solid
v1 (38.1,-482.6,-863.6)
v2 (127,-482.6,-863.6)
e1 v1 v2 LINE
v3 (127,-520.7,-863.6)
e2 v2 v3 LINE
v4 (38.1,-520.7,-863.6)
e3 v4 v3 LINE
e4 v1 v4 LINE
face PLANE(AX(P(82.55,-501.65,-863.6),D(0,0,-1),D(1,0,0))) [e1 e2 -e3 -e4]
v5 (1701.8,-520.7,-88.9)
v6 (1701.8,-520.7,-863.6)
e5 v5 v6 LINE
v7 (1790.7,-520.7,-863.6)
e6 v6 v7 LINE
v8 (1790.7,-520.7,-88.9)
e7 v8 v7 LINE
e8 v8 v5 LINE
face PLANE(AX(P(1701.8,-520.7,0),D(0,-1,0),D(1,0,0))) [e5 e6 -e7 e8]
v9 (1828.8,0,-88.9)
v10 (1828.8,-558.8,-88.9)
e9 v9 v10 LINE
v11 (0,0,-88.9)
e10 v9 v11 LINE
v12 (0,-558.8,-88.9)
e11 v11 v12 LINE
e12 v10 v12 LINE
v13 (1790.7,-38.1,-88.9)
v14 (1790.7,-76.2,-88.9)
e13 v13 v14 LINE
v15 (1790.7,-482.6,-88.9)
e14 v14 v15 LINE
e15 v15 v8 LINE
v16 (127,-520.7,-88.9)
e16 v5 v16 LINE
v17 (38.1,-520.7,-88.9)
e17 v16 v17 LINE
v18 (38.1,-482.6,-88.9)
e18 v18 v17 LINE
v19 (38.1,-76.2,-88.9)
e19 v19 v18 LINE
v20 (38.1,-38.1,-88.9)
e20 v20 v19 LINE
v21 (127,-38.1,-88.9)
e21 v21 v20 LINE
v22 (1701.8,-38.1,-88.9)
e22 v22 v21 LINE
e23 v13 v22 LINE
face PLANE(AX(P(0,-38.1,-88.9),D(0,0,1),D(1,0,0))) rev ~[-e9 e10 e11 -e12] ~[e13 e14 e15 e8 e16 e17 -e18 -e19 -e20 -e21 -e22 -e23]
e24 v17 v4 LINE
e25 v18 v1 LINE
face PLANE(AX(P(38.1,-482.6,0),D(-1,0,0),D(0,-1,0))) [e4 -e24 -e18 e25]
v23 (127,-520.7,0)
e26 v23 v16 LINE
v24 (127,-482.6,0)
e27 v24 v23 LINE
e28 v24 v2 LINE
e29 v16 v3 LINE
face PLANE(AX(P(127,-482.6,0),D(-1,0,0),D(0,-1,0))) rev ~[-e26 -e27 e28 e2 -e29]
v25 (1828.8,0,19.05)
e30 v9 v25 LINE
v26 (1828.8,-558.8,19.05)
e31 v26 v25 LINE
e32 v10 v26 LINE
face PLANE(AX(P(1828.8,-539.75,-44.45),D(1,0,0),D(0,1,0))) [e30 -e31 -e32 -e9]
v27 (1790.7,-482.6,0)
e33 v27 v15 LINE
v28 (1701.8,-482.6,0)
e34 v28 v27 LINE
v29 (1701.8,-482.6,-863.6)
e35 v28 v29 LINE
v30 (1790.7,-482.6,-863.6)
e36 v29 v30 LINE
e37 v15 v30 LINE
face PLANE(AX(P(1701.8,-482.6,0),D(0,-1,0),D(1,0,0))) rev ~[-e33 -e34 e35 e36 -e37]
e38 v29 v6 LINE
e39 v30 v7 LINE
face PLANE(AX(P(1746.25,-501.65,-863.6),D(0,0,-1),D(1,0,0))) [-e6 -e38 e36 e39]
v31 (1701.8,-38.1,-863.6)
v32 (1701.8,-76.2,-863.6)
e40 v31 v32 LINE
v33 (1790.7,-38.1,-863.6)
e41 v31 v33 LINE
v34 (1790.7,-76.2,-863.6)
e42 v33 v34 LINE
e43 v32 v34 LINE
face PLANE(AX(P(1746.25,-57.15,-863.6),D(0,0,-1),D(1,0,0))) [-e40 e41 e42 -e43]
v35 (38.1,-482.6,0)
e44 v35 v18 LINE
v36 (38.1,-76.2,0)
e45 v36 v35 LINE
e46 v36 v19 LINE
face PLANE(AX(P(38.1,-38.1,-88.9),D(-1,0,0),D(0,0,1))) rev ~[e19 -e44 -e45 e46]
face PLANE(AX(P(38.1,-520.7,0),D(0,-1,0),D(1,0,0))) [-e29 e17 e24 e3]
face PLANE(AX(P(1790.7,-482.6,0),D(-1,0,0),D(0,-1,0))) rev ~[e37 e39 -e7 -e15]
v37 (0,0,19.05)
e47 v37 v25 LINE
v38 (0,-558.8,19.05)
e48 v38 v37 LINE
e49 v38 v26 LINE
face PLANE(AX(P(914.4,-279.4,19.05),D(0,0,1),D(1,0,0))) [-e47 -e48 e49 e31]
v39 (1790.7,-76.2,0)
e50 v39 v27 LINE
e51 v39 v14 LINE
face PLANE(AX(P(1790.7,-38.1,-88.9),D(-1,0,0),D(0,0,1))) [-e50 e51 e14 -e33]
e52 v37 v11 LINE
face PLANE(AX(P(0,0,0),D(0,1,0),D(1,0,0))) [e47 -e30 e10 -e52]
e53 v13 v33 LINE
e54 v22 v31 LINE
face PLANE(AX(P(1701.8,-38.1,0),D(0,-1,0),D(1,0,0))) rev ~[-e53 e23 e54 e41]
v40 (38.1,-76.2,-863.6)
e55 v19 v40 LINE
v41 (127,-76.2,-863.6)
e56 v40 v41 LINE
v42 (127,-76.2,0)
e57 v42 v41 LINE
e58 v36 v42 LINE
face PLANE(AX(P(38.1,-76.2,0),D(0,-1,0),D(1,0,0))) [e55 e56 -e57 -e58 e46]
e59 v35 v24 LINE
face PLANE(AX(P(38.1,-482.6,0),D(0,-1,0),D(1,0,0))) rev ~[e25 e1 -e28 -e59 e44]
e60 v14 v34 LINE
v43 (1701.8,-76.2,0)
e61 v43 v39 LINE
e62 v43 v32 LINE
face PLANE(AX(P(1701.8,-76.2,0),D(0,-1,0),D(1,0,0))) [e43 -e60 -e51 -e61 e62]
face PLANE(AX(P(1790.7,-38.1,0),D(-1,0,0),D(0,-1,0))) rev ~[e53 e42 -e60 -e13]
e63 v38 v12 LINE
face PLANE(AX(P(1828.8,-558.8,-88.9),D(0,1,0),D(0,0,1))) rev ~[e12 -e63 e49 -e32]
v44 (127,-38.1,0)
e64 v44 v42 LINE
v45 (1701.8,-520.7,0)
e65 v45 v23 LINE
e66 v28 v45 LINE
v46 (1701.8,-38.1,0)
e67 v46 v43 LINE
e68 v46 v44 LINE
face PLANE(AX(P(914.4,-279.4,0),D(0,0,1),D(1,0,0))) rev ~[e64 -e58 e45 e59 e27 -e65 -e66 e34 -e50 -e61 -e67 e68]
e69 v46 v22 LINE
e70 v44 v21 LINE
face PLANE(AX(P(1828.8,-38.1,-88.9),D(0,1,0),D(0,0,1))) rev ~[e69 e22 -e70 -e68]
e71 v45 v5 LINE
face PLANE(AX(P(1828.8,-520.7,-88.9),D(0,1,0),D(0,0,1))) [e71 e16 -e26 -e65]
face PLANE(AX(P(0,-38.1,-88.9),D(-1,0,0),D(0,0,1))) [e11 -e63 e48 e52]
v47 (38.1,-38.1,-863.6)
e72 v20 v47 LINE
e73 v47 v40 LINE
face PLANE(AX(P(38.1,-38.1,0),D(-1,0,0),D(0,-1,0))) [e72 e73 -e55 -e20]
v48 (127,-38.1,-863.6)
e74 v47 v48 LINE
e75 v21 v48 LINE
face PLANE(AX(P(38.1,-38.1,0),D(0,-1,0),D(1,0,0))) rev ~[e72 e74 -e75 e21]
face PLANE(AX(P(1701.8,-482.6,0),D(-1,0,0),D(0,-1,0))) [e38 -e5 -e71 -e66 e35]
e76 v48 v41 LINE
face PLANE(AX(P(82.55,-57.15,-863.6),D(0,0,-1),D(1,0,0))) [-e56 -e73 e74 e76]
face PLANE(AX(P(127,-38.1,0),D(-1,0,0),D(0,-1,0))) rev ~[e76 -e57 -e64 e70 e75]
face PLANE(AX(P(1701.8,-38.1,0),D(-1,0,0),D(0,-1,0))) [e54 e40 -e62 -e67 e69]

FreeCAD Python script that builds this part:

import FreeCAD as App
import Part
import Sketcher
from FreeCAD import Vector
Q = App.Units.Quantity


def add_polygon(sketch, points):
    """Adds a closed chain of lines whose ends are joined by coincident constraints."""
    first, n = sketch.GeometryCount, len(points)
    for a, b in zip(points, points[1:] + points[:1]):
        sketch.addGeometry(Part.LineSegment(App.Vector(*a, 0), App.Vector(*b, 0)), False)
    for i in range(n):
        sketch.addConstraint(Sketcher.Constraint("Coincident", first + i, 2, first + (i + 1) % n, 1))

doc = App.newDocument("Part")
body = doc.addObject("PartDesign::Body", "Body")

# Sketch on XY plane
sketch1 = body.newObject("Sketcher::SketchObject", "Sketch")
sketch1.AttachmentSupport = (doc.getObject("XY_Plane"), [""])
sketch1.MapMode = "FlatFace"
add_polygon(sketch1, [(0, 0), (0, -559), (1829, -559), (1829, 0)])  # lines 0-3
sketch1.addConstraint([
    Sketcher.Constraint("Vertical", 0),
    Sketcher.Constraint("Horizontal", 1),
    Sketcher.Constraint("Vertical", 2),
    Sketcher.Constraint("Horizontal", 3),
    Sketcher.Constraint("Coincident", 3, 2, -1, 1),
    Sketcher.Constraint("DistanceX", 1, 1, 1, 2, Q("72 in")),
    Sketcher.Constraint("DistanceY", 0, 2, 0, 1, Q("22 in")),
])
pad1 = body.newObject("PartDesign::Pad", "Pad")
pad1.Profile = sketch1
pad1.Length = Q("0.75 in")

# Sketch on YZ plane
sketch2 = body.newObject("Sketcher::SketchObject", "Sketch001")
sketch2.AttachmentSupport = (doc.getObject("YZ_Plane"), [""])
sketch2.MapMode = "FlatFace"
sketch2.AttachmentOffset = App.Placement(Vector(0, 0, 72 * 25.4), App.Rotation())
add_polygon(sketch2, [(-559, 0), (-559, -89), (-521, -89), (-521, 0)])  # lines 0-3
add_polygon(sketch2, [(-38, 0), (-38, -89), (0, -89), (0, 0)])  # lines 4-7
sketch2.addConstraint([
    Sketcher.Constraint("Vertical", 0),
    Sketcher.Constraint("Horizontal", 1),
    Sketcher.Constraint("Vertical", 2),
    Sketcher.Constraint("Horizontal", 3),
    Sketcher.Constraint("Vertical", 4),
    Sketcher.Constraint("Horizontal", 5),
    Sketcher.Constraint("Vertical", 6),
    Sketcher.Constraint("Horizontal", 7),
    Sketcher.Constraint("Coincident", 6, 2, -1, 1),
    Sketcher.Constraint("PointOnObject", 2, 2, -1),
    Sketcher.Constraint("Horizontal", 1, 2, 4, 2),
    Sketcher.Constraint("Equal", 3, 5),
    Sketcher.Constraint("DistanceX", 1, 1, 1, 2, Q("1.5 in")),
    Sketcher.Constraint("DistanceY", 0, 2, 0, 1, Q("3.5 in")),
    Sketcher.Constraint("DistanceX", 0, 2, -1, 1, Q("22 in")),
])
pad2 = body.newObject("PartDesign::Pad", "Pad001")
pad2.Profile = sketch2
pad2.Length = Q("72 in")
pad2.Reversed = True

# Sketch on XZ plane
sketch3 = body.newObject("Sketcher::SketchObject", "Sketch002")
sketch3.AttachmentSupport = (doc.getObject("XZ_Plane"), [""])
sketch3.MapMode = "FlatFace"
sketch3.AttachmentOffset = App.Placement(Vector(0, 0, 1.5 * 25.4), App.Rotation())
add_polygon(sketch3, [(0, 0), (0, -89), (38, -89), (38, 0)])  # lines 0-3
add_polygon(sketch3, [(1791, 0), (1791, -89), (1829, -89), (1829, 0)])  # lines 4-7
sketch3.addConstraint([
    Sketcher.Constraint("Vertical", 0),
    Sketcher.Constraint("Horizontal", 1),
    Sketcher.Constraint("Vertical", 2),
    Sketcher.Constraint("Horizontal", 3),
    Sketcher.Constraint("Vertical", 4),
    Sketcher.Constraint("Horizontal", 5),
    Sketcher.Constraint("Vertical", 6),
    Sketcher.Constraint("Horizontal", 7),
    Sketcher.Constraint("Coincident", 3, 2, -1, 1),
    Sketcher.Constraint("PointOnObject", 6, 2, -1),
    Sketcher.Constraint("Horizontal", 1, 2, 4, 2),
    Sketcher.Constraint("Equal", 3, 5),
    Sketcher.Constraint("DistanceX", 1, 1, 1, 2, Q("1.5 in")),
    Sketcher.Constraint("DistanceY", 0, 2, 0, 1, Q("3.5 in")),
    Sketcher.Constraint("DistanceX", -1, 1, 5, 2, Q("72 in")),
])
pad3 = body.newObject("PartDesign::Pad", "Pad002")
pad3.Profile = sketch3
pad3.Type = "UpToLast"

# Sketch on XY plane
sketch4 = body.newObject("Sketcher::SketchObject", "Sketch003")
sketch4.AttachmentSupport = (doc.getObject("XY_Plane"), [""])
sketch4.MapMode = "FlatFace"
add_polygon(sketch4, [(1702, -521), (1702, -483), (1791, -483), (1791, -521)])  # lines 0-3
add_polygon(sketch4, [(1702, -76), (1702, -38), (1791, -38), (1791, -76)])  # lines 4-7
add_polygon(sketch4, [(38, -76), (38, -38), (127, -38), (127, -76)])  # lines 8-11
add_polygon(sketch4, [(38, -521), (38, -483), (127, -483), (127, -521)])  # lines 12-15
sketch4.addConstraint([
    Sketcher.Constraint("Vertical", 0),
    Sketcher.Constraint("Horizontal", 1),
    Sketcher.Constraint("Vertical", 2),
    Sketcher.Constraint("Horizontal", 3),
    Sketcher.Constraint("Vertical", 4),
    Sketcher.Constraint("Horizontal", 5),
    Sketcher.Constraint("Vertical", 6),
    Sketcher.Constraint("Horizontal", 7),
    Sketcher.Constraint("Vertical", 8),
    Sketcher.Constraint("Horizontal", 9),
    Sketcher.Constraint("Vertical", 10),
    Sketcher.Constraint("Horizontal", 11),
    Sketcher.Constraint("Vertical", 12),
    Sketcher.Constraint("Horizontal", 13),
    Sketcher.Constraint("Vertical", 14),
    Sketcher.Constraint("Horizontal", 15),
    Sketcher.Constraint("Horizontal", 5, 2, 8, 2),
    Sketcher.Constraint("Horizontal", 7, 2, 10, 2),
    Sketcher.Constraint("Horizontal", 1, 2, 12, 2),
    Sketcher.Constraint("Horizontal", 3, 2, 14, 2),
    Sketcher.Constraint("Vertical", 3, 2, 4, 2),
    Sketcher.Constraint("Vertical", 2, 2, 5, 2),
    Sketcher.Constraint("Vertical", 11, 2, 12, 2),
    Sketcher.Constraint("Vertical", 10, 2, 13, 2),
    Sketcher.Constraint("Equal", 7, 9),
    Sketcher.Constraint("Equal", 2, 4),
    Sketcher.Constraint("DistanceX", 1, 1, 1, 2, Q("3.5 in")),
    Sketcher.Constraint("DistanceY", 0, 1, 0, 2, Q("1.5 in")),
    Sketcher.Constraint("DistanceX", -1, 1, 0, 2, Q("67 in")),
    Sketcher.Constraint("DistanceY", 0, 2, -1, 1, Q("19 in")),
    Sketcher.Constraint("DistanceY", 6, 2, -1, 1, Q("3 in")),
    Sketcher.Constraint("DistanceX", -1, 1, 9, 2, Q("5 in")),
])
pad4 = body.newObject("PartDesign::Pad", "Pad003")
pad4.Profile = sketch4
pad4.Length = Q("34 in")
pad4.Reversed = True

doc.recompute()
